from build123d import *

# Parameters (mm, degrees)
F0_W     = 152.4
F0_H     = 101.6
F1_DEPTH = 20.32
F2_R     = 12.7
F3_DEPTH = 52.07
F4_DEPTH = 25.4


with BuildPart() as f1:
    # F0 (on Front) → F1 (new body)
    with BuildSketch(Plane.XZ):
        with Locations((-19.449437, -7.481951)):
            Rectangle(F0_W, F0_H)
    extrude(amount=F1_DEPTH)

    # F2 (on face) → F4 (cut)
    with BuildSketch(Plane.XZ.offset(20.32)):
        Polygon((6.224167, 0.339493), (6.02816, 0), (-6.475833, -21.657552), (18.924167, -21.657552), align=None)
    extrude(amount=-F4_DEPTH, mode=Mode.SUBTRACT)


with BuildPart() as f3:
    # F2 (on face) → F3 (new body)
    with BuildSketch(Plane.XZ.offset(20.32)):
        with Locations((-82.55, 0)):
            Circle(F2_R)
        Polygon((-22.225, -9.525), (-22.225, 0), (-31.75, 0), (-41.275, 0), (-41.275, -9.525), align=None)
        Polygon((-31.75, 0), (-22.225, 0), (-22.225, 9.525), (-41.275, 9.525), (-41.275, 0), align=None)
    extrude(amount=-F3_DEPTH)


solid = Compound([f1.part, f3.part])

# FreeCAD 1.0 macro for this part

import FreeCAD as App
import Part
import Sketcher

V = App.Vector
Q = App.Units.Quantity

doc = App.newDocument("Part")
body = doc.addObject("PartDesign::Body", "Body")

# Sketch on XZ plane
sketch1 = body.newObject("Sketcher::SketchObject", "Sketch")
sketch1.AttachmentSupport = (doc.getObject("XZ_Plane"), [""])
sketch1.MapMode = "FlatFace"
sketch1.addGeometry(Part.LineSegment(V(-96, 43, 0), V(-96, -58, 0)), False)
sketch1.addGeometry(Part.LineSegment(V(-96, -58, 0), V(57, -58, 0)), False)
sketch1.addGeometry(Part.LineSegment(V(57, -58, 0), V(57, 43, 0)), False)
sketch1.addGeometry(Part.LineSegment(V(57, 43, 0), V(-96, 43, 0)), False)
sketch1.addConstraint(Sketcher.Constraint("Coincident", 0, 2, 1, 1))
sketch1.addConstraint(Sketcher.Constraint("Coincident", 1, 2, 2, 1))
sketch1.addConstraint(Sketcher.Constraint("Coincident", 2, 2, 3, 1))
sketch1.addConstraint(Sketcher.Constraint("Coincident", 3, 2, 0, 1))
sketch1.addConstraint(Sketcher.Constraint("Vertical", 0))
sketch1.addConstraint(Sketcher.Constraint("Horizontal", 1))
sketch1.addConstraint(Sketcher.Constraint("Vertical", 2))
sketch1.addConstraint(Sketcher.Constraint("Horizontal", 3))
sketch1.addConstraint(Sketcher.Constraint("DistanceX", 1, 1, 1, 2, Q("6 in")))
sketch1.addConstraint(Sketcher.Constraint("DistanceY", 0, 2, 0, 1, Q("4 in")))
sketch1.addConstraint(Sketcher.Constraint("DistanceY", 0, 2, -1, 1, 58.281951))
sketch1.addConstraint(Sketcher.Constraint("DistanceX", 0, 2, -1, 1, 95.649437))
pad1 = body.newObject("PartDesign::Pad", "Pad")
pad1.Profile = sketch1
pad1.Length = Q("0.8 in")

# Sketch on XZ plane
sketch2 = body.newObject("Sketcher::SketchObject", "Sketch001")
sketch2.AttachmentSupport = (doc.getObject("XZ_Plane"), [""])
sketch2.MapMode = "FlatFace"
sketch2.AttachmentOffset = App.Placement(V(0, 0, 0.8 * 25.4), App.Rotation())
sketch2.addGeometry(Part.LineSegment(V(6.22, 0.34, 0), V(6.03, 0, 0)), False)
sketch2.addGeometry(Part.LineSegment(V(6.03, 0, 0), V(-6.48, -21.66, 0)), False)
sketch2.addGeometry(Part.LineSegment(V(-6.48, -21.66, 0), V(18.92, -21.66, 0)), False)
sketch2.addGeometry(Part.LineSegment(V(18.92, -21.66, 0), V(6.22, 0.34, 0)), False)
sketch2.addConstraint(Sketcher.Constraint("Coincident", 0, 2, 1, 1))
sketch2.addConstraint(Sketcher.Constraint("Coincident", 1, 2, 2, 1))
sketch2.addConstraint(Sketcher.Constraint("Coincident", 2, 2, 3, 1))
sketch2.addConstraint(Sketcher.Constraint("Coincident", 3, 2, 0, 1))
sketch2.addConstraint(Sketcher.Constraint("Horizontal", 2))
sketch2.addConstraint(Sketcher.Constraint("PointOnObject", 0, 2, -1))
sketch2.addConstraint(Sketcher.Constraint("Parallel", 0, 1))
sketch2.addConstraint(Sketcher.Constraint("DistanceX", 2, 1, 2, 2, Q("1 in")))
sketch2.addConstraint(Sketcher.Constraint("Distance", 3, Q("1 in")))
sketch2.addConstraint(Sketcher.Constraint("Angle", 1, Q("-119.999999 deg")))
sketch2.addConstraint(Sketcher.Constraint("DistanceX", -1, 1, 0, 2, 6.02816))
sketch2.addConstraint(Sketcher.Constraint("DistanceY", 1, 2, -1, 1, 21.657552))
pocket1 = body.newObject("PartDesign::Pocket", "Pocket")
pocket1.Profile = sketch2
pocket1.Length = Q("1 in")
body2 = doc.addObject("PartDesign::Body", "Body001")
body2.AllowCompound = True

# Sketch on XZ plane
sketch3 = body2.newObject("Sketcher::SketchObject", "Sketch002")
sketch3.AttachmentSupport = (doc.getObject("XZ_Plane001"), [""])
sketch3.MapMode = "FlatFace"
sketch3.AttachmentOffset = App.Placement(V(0, 0, 0.8 * 25.4), App.Rotation())
sketch3.addGeometry(Part.Circle(V(-83, 0, 0), V(0, 0, 1), 13), False)
sketch3.addGeometry(Part.LineSegment(V(-22, -10, 0), V(-22, 10, 0)), False)
sketch3.addGeometry(Part.LineSegment(V(-22, 10, 0), V(-41, 10, 0)), False)
sketch3.addGeometry(Part.LineSegment(V(-41, 10, 0), V(-41, -10, 0)), False)
sketch3.addGeometry(Part.LineSegment(V(-41, -10, 0), V(-22, -10, 0)), False)
sketch3.addConstraint(Sketcher.Constraint("Coincident", 1, 2, 2, 1))
sketch3.addConstraint(Sketcher.Constraint("Coincident", 2, 2, 3, 1))
sketch3.addConstraint(Sketcher.Constraint("Coincident", 3, 2, 4, 1))
sketch3.addConstraint(Sketcher.Constraint("Coincident", 4, 2, 1, 1))
sketch3.addConstraint(Sketcher.Constraint("Vertical", 1))
sketch3.addConstraint(Sketcher.Constraint("Horizontal", 2))
sketch3.addConstraint(Sketcher.Constraint("Vertical", 3))
sketch3.addConstraint(Sketcher.Constraint("Horizontal", 4))
sketch3.addConstraint(Sketcher.Constraint("PointOnObject", 0, 3, -1))
sketch3.addConstraint(Sketcher.Constraint("Equal", 4, 1))
sketch3.addConstraint(Sketcher.Constraint("Diameter", 0, Q("1 in")))
sketch3.addConstraint(Sketcher.Constraint("DistanceX", 2, 2, 2, 1, Q("0.75 in")))
sketch3.addConstraint(Sketcher.Constraint("DistanceX", 0, 3, -1, 1, Q("3.25 in")))
sketch3.addConstraint(Sketcher.Constraint("DistanceX", 1, 2, -1, 1, Q("0.875 in")))
sketch3.addConstraint(Sketcher.Constraint("DistanceY", -1, 1, 1, 2, Q("0.375 in")))
pad2 = body2.newObject("PartDesign::Pad", "Pad001")
pad2.Profile = sketch3
pad2.Length = Q("2.05 in")
pad2.Reversed = True

doc.recompute()
